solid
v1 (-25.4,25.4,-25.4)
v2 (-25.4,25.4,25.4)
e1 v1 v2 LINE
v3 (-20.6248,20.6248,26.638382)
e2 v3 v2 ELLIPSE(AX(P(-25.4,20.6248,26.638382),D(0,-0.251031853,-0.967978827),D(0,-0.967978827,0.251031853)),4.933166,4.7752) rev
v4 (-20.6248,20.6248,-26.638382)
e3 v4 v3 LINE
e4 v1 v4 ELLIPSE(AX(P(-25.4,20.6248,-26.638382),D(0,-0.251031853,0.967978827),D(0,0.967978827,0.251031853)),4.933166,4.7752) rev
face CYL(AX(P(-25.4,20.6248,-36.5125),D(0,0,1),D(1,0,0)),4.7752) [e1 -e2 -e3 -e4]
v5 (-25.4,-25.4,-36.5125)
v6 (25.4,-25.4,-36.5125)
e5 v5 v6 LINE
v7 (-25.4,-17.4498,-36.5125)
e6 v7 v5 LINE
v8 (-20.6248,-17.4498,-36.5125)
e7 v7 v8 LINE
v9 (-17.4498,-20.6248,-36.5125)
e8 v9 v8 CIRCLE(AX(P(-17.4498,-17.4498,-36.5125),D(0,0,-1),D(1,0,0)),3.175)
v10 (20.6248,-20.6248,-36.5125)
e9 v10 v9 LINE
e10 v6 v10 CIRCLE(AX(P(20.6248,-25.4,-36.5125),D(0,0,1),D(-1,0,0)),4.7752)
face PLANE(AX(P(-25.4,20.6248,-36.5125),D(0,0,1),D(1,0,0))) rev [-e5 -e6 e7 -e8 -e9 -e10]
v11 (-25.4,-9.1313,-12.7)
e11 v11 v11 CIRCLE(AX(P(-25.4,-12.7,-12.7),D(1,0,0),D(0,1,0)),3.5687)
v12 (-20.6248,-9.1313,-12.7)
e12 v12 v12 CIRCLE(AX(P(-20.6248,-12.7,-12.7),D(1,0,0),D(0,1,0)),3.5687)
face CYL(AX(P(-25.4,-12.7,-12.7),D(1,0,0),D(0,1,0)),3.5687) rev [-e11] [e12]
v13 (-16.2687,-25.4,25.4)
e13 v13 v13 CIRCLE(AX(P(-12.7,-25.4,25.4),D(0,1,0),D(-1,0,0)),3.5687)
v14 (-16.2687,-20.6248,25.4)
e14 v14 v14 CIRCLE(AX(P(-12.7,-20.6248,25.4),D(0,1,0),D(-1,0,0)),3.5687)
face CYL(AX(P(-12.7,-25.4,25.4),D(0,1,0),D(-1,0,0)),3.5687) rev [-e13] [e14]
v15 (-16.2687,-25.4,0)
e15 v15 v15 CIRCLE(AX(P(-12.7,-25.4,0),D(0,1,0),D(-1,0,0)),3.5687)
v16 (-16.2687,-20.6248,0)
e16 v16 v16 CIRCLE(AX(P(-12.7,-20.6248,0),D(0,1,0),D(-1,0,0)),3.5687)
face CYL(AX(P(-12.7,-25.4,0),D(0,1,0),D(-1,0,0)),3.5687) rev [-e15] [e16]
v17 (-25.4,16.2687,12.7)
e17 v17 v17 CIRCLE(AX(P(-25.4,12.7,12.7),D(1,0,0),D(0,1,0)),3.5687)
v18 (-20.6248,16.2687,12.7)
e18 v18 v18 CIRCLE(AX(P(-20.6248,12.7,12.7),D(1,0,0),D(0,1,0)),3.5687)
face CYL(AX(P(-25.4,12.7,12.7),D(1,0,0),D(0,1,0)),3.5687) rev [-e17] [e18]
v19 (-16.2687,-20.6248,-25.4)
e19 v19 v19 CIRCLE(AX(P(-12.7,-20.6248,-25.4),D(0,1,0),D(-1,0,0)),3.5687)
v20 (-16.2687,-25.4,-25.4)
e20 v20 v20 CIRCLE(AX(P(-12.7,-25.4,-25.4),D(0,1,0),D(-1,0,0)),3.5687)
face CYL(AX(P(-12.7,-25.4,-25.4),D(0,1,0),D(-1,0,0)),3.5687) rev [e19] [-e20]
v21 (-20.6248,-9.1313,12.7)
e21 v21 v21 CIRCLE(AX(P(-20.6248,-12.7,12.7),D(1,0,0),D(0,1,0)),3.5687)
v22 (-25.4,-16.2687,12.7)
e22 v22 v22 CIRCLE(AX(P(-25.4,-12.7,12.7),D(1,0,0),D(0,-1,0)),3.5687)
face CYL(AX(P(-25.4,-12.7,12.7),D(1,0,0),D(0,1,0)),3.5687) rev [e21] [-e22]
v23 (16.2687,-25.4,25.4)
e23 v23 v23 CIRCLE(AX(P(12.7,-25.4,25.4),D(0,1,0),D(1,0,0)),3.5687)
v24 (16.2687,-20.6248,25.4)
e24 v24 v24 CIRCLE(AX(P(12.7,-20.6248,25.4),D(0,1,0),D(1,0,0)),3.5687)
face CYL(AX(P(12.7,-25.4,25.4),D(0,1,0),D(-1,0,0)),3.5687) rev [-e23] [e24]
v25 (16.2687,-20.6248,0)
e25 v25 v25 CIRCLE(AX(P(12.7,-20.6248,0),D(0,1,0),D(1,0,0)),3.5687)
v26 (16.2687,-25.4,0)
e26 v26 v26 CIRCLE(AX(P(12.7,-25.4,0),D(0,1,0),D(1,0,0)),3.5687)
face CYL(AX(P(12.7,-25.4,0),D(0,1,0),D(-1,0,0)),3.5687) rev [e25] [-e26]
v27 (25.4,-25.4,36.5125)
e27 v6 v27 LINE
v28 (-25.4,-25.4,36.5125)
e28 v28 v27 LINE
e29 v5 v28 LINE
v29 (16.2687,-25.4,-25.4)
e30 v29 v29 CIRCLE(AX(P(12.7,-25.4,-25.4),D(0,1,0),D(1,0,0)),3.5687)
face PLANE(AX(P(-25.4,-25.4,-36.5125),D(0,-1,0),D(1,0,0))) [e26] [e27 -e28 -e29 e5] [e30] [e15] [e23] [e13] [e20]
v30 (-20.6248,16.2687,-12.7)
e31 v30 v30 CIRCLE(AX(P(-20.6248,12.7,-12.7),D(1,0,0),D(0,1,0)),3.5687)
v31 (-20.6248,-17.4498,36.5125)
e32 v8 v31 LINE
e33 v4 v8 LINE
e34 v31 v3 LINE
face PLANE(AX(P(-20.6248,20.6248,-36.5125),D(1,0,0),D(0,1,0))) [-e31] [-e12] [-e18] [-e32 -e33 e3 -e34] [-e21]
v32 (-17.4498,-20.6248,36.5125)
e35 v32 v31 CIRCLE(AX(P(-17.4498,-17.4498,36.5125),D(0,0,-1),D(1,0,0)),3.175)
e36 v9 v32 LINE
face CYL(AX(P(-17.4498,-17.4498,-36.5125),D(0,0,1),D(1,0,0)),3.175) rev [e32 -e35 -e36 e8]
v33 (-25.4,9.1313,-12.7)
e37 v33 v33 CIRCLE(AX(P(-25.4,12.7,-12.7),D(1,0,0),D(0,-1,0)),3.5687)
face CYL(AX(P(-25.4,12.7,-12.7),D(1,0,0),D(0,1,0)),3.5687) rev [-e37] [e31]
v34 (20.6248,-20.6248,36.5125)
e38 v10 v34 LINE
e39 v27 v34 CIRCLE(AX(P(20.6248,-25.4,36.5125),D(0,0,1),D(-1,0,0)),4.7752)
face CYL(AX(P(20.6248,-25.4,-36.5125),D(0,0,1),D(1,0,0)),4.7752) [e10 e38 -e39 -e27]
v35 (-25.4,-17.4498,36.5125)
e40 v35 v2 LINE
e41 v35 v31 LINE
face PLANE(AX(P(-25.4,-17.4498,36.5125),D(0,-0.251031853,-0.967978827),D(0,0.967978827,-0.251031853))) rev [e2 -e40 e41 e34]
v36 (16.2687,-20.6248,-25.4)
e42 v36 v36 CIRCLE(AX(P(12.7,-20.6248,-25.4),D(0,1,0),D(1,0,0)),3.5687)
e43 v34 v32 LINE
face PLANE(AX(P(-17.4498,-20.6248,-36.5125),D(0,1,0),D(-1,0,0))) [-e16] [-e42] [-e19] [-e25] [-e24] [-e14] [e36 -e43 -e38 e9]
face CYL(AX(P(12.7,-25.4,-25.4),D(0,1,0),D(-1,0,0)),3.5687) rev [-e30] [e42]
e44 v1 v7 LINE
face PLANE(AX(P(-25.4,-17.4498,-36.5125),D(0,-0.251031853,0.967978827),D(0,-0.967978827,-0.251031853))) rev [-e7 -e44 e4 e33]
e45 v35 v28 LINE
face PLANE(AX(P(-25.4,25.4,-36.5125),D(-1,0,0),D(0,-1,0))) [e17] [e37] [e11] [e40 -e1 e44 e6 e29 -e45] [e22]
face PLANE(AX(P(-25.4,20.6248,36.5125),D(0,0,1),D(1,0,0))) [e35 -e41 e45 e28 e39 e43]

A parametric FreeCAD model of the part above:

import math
import FreeCAD as App
import Part
import Sketcher

V = App.Vector
Q = App.Units.Quantity

doc = App.newDocument("Part")
params = doc.addObject("Spreadsheet::Sheet", "Params")
for row, (alias, value) in enumerate([
    ("sketch1_width", "2 in"),
    ("sketch1_radius", "0.188 in"),
    ("sketch1_radius2", "0.125 in"),
    ("pad1_length", "1.4375 in"),
    ("pad1_length2", "1.4375 in"),
    ("sketch2_width", "1.687 in"),
    ("sketch2_height", "0.4375 in"),
    ("sketch3_diameter", "0.281 in"),
    ("sketch4_diameter", "0.281 in"),
], start=1):
    params.set(f"A{row}", alias)
    params.set(f"B{row}", "=" + value)
    params.setAlias(f"B{row}", alias)

body = doc.addObject("PartDesign::Body", "Body")

# Sketch on XY plane
sketch1 = body.newObject("Sketcher::SketchObject", "Sketch")
sketch1.AttachmentSupport = (doc.getObject("XY_Plane"), [""])
sketch1.MapMode = "FlatFace"
sketch1.addGeometry([
    Part.LineSegment(V(-25.4, 25.4, 0), V(-25.4, -25.4, 0)),  # 0
    Part.LineSegment(V(-25.4, -25.4, 0), V(25.4, -25.4, 0)),  # 1
    Part.ArcOfCircle(Part.Circle(V(20.6, -25.4, 0), V(0, 0, 1), 4.8), math.radians(0), math.radians(90)),  # 2
    Part.LineSegment(V(20.6, -20.6, 0), V(-17.4, -20.6, 0)),  # 3
    Part.ArcOfCircle(Part.Circle(V(-17.4, -17.4, 0), V(0, 0, 1), 3.2), math.radians(-180), math.radians(-90)),  # 4
    Part.LineSegment(V(-20.6, -17.4, 0), V(-20.6, 20.6, 0)),  # 5
    Part.ArcOfCircle(Part.Circle(V(-25.4, 20.6, 0), V(0, 0, 1), 4.8), math.radians(0), math.radians(90)),  # 6
], False)
sketch1.addConstraint([
    Sketcher.Constraint("Coincident", 0, 2, 1, 1),
    Sketcher.Constraint("Coincident", 1, 2, 2, 1),
    Sketcher.Constraint("Tangent", 2, 2, 3, 1),
    Sketcher.Constraint("Tangent", 3, 2, 4, 2),
    Sketcher.Constraint("Tangent", 4, 1, 5, 1),
    Sketcher.Constraint("Tangent", 5, 2, 6, 1),
    Sketcher.Constraint("Coincident", 6, 2, 0, 1),
    Sketcher.Constraint("Vertical", 0),
    Sketcher.Constraint("Horizontal", 1),
    Sketcher.Constraint("Horizontal", 3),
    Sketcher.Constraint("Vertical", 5),
    Sketcher.Constraint("Equal", 2, 6),
    Sketcher.Constraint("Symmetric", 2, 2, 5, 2, -1, 1),
    Sketcher.Constraint("Symmetric", 1, 2, 6, 2, -1, 1),
    Sketcher.Constraint("Equal", 1, 0),
    Sketcher.Constraint("DistanceX", 1, 1, 1, 2, Q("2 in")),
    Sketcher.Constraint("Radius", 2, Q("0.188 in")),
    Sketcher.Constraint("Radius", 4, Q("0.125 in")),
])
sketch1.setExpression("Constraints[15]", "Params.sketch1_width")
sketch1.setExpression("Constraints[16]", "Params.sketch1_radius")
sketch1.setExpression("Constraints[17]", "Params.sketch1_radius2")
pad1 = body.newObject("PartDesign::Pad", "Pad")
pad1.Profile = sketch1
pad1.Type = "TwoLengths"
pad1.setExpression("Length", "Params.pad1_length")
pad1.setExpression("Length2", "Params.pad1_length2")

# Sketch on YZ plane
sketch2 = body.newObject("Sketcher::SketchObject", "Sketch001")
sketch2.AttachmentSupport = (doc.getObject("YZ_Plane"), [""])
sketch2.MapMode = "FlatFace"
sketch2.AttachmentOffset = App.Placement(V(0, 0, -0.812 * 25.4), App.Rotation())
sketch2.addGeometry([
    Part.LineSegment(V(-17, 37, 0), V(25, 25, 0)),  # 0
    Part.LineSegment(V(25, 25, 0), V(25, 37, 0)),  # 1
    Part.LineSegment(V(25, 37, 0), V(-17, 37, 0)),  # 2
    Part.LineSegment(V(25, -37, 0), V(25, -25, 0)),  # 3
    Part.LineSegment(V(25, -25, 0), V(-17, -37, 0)),  # 4
    Part.LineSegment(V(-17, -37, 0), V(25, -37, 0)),  # 5
], False)
sketch2.addConstraint([
    Sketcher.Constraint("Coincident", 0, 2, 1, 1),
    Sketcher.Constraint("Coincident", 1, 2, 2, 1),
    Sketcher.Constraint("Coincident", 2, 2, 0, 1),
    Sketcher.Constraint("Coincident", 3, 2, 4, 1),
    Sketcher.Constraint("Coincident", 4, 2, 5, 1),
    Sketcher.Constraint("Coincident", 5, 2, 3, 1),
    Sketcher.Constraint("Vertical", 1),
    Sketcher.Constraint("Horizontal", 2),
    Sketcher.Constraint("Vertical", 3),
    Sketcher.Constraint("Horizontal", 5),
    Sketcher.Constraint("Symmetric", 0, 2, 3, 2, -1),
    Sketcher.Constraint("Symmetric", 2, 2, 4, 2, -1),
    Sketcher.Constraint("DistanceX", -1, 1, 0, 2, Q("1 in")),
    Sketcher.Constraint("DistanceY", -1, 1, 0, 2, Q("1 in")),
    Sketcher.Constraint("DistanceX", 2, 2, 2, 1, Q("1.687 in")),
    Sketcher.Constraint("DistanceY", 1, 1, 1, 2, Q("0.4375 in")),
])
sketch2.setExpression("Constraints[14]", "Params.sketch2_width")
sketch2.setExpression("Constraints[15]", "Params.sketch2_height")
pocket1 = body.newObject("PartDesign::Pocket", "Pocket")
pocket1.Profile = sketch2
pocket1.Type = "ThroughAll"
pocket1.Midplane = True

# Sketch on YZ plane
sketch3 = body.newObject("Sketcher::SketchObject", "Sketch002")
sketch3.AttachmentSupport = (doc.getObject("YZ_Plane"), [""])
sketch3.MapMode = "FlatFace"
sketch3.AttachmentOffset = App.Placement(V(0, 0, -0.812 * 25.4), App.Rotation())
sketch3.addGeometry([
    Part.Circle(V(12.7, 12.7, 0), V(0, 0, 1), 3.6),
    Part.Circle(V(-12.7, 12.7, 0), V(0, 0, 1), 3.6),
    Part.Circle(V(-12.7, -12.7, 0), V(0, 0, 1), 3.6),
    Part.Circle(V(12.7, -12.7, 0), V(0, 0, 1), 3.6),
], False)
sketch3.addConstraint([
    Sketcher.Constraint("Equal", 0, 1),
    Sketcher.Constraint("Equal", 1, 2),
    Sketcher.Constraint("Equal", 2, 3),
    Sketcher.Constraint("Symmetric", 0, 3, 2, 3, -1, 1),
    Sketcher.Constraint("Symmetric", 1, 3, 3, 3, -1, 1),
    Sketcher.Constraint("Symmetric", 0, 3, 1, 3, -2),
    Sketcher.Constraint("Diameter", 0, Q("0.281 in")),
    Sketcher.Constraint("DistanceX", 1, 3, 0, 3, Q("1 in")),
    Sketcher.Constraint("DistanceY", 2, 3, 1, 3, Q("1 in")),
])
sketch3.setExpression("Constraints[6]", "Params.sketch3_diameter")
pocket2 = body.newObject("PartDesign::Pocket", "Pocket001")
pocket2.Profile = sketch3
pocket2.Type = "ThroughAll"
pocket2.Midplane = True

# Sketch on XZ plane
sketch4 = body.newObject("Sketcher::SketchObject", "Sketch003")
sketch4.AttachmentSupport = (doc.getObject("XZ_Plane"), [""])
sketch4.MapMode = "FlatFace"
sketch4.AttachmentOffset = App.Placement(V(0, 0, 0.812 * 25.4), App.Rotation())
sketch4.addGeometry([
    Part.Circle(V(-12.7, 0, 0), V(0, 0, 1), 3.6),  # 0
    Part.Circle(V(-12.7, -25.4, 0), V(0, 0, 1), 3.6),  # 1
    Part.Circle(V(-12.7, 25.4, 0), V(0, 0, 1), 3.6),  # 2
    Part.Circle(V(12.7, 25.4, 0), V(0, 0, 1), 3.6),  # 3
    Part.Circle(V(12.7, -25.4, 0), V(0, 0, 1), 3.6),  # 4
    Part.Circle(V(12.7, 0, 0), V(0, 0, 1), 3.6),  # 5
], False)
sketch4.addConstraint([
    Sketcher.Constraint("Equal", 0, 1),
    Sketcher.Constraint("Equal", 1, 2),
    Sketcher.Constraint("Equal", 2, 3),
    Sketcher.Constraint("Equal", 3, 4),
    Sketcher.Constraint("Equal", 4, 5),
    Sketcher.Constraint("Symmetric", 1, 3, 3, 3, -1, 1),
    Sketcher.Constraint("Symmetric", 2, 3, 4, 3, -1, 1),
    Sketcher.Constraint("Symmetric", 0, 3, 5, 3, -1, 1),
    Sketcher.Constraint("Symmetric", 2, 3, 3, 3, -2),
    Sketcher.Constraint("PointOnObject", 0, 3, -1),
    Sketcher.Constraint("Vertical", 0, 3, 1, 3),
    Sketcher.Constraint("Diameter", 0, Q("0.281 in")),
    Sketcher.Constraint("DistanceY", 1, 3, -1, 1, Q("1 in")),
    Sketcher.Constraint("DistanceX", 2, 3, 3, 3, Q("1 in")),
])
sketch4.setExpression("Constraints[11]", "Params.sketch4_diameter")
pocket3 = body.newObject("PartDesign::Pocket", "Pocket002")
pocket3.Profile = sketch4
pocket3.Type = "ThroughAll"
pocket3.Reversed = True

doc.recompute()
